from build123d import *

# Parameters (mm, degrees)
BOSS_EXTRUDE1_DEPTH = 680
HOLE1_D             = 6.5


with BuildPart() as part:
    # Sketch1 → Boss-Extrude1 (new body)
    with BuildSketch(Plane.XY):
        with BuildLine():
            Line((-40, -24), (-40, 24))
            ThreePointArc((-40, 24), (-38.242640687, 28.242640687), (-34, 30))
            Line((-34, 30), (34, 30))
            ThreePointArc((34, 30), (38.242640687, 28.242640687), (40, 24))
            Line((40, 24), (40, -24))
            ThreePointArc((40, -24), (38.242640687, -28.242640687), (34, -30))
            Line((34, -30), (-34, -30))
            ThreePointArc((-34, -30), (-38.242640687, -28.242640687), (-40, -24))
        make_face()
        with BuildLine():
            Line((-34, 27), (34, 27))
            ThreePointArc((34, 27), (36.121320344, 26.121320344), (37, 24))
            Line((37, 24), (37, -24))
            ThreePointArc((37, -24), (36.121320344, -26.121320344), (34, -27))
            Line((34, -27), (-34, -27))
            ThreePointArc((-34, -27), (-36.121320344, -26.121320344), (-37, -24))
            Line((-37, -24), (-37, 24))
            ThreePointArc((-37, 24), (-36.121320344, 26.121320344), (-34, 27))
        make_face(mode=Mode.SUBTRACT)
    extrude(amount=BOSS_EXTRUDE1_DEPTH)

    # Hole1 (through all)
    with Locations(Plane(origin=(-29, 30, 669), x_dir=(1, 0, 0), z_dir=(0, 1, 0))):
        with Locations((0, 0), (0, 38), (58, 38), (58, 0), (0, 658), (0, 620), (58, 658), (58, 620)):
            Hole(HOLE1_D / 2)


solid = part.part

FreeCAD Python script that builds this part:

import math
import FreeCAD as App
import Part
import Sketcher
Q = App.Units.Quantity

doc = App.newDocument("Part")
params = doc.addObject("Spreadsheet::Sheet", "Params")
for row, (alias, value) in enumerate([
    ("sketch1_radius", "6 mm"),
    ("sketch1_radius2", "3 mm"),
    ("sketch1_width", "68 mm"),
    ("sketch1_height", "48 mm"),
    ("pad1_length", "680 mm"),
    ("sketch2_diameter", "6.5 mm"),
    ("hole_diameter", "6.5 mm"),
], start=1):
    params.set(f"A{row}", alias)
    params.set(f"B{row}", "=" + value)
    params.setAlias(f"B{row}", alias)

body = doc.addObject("PartDesign::Body", "Body")

# Sketch on XY plane
sketch1 = doc.addObject("Sketcher::SketchObject", "Sketch")
body.addObject(sketch1)
sketch1.AttachmentSupport = (doc.XY_Plane, [""])
sketch1.MapMode = "FlatFace"
sketch1.addGeometry(Part.LineSegment(App.Vector(-40, 24, 0), App.Vector(-40, -24, 0)), False)
sketch1.addGeometry(Part.ArcOfCircle(Part.Circle(App.Vector(-34, -24, 0), App.Vector(0, 0, 1), 6), math.radians(180), math.radians(270)), False)
sketch1.addGeometry(Part.LineSegment(App.Vector(-34, -30, 0), App.Vector(34, -30, 0)), False)
sketch1.addGeometry(Part.ArcOfCircle(Part.Circle(App.Vector(34, -24, 0), App.Vector(0, 0, 1), 6), math.radians(-90), math.radians(0)), False)
sketch1.addGeometry(Part.LineSegment(App.Vector(40, -24, 0), App.Vector(40, 24, 0)), False)
sketch1.addGeometry(Part.ArcOfCircle(Part.Circle(App.Vector(34, 24, 0), App.Vector(0, 0, 1), 6), math.radians(0), math.radians(90)), False)
sketch1.addGeometry(Part.LineSegment(App.Vector(34, 30, 0), App.Vector(-34, 30, 0)), False)
sketch1.addGeometry(Part.ArcOfCircle(Part.Circle(App.Vector(-34, 24, 0), App.Vector(0, 0, 1), 6), math.radians(90), math.radians(180)), False)
sketch1.addGeometry(Part.LineSegment(App.Vector(-34, 27, 0), App.Vector(34, 27, 0)), False)
sketch1.addGeometry(Part.ArcOfCircle(Part.Circle(App.Vector(34, 24, 0), App.Vector(0, 0, 1), 3), math.radians(0), math.radians(90)), False)
sketch1.addGeometry(Part.LineSegment(App.Vector(37, 24, 0), App.Vector(37, -24, 0)), False)
sketch1.addGeometry(Part.ArcOfCircle(Part.Circle(App.Vector(34, -24, 0), App.Vector(0, 0, 1), 3), math.radians(-90), math.radians(0)), False)
sketch1.addGeometry(Part.LineSegment(App.Vector(34, -27, 0), App.Vector(-34, -27, 0)), False)
sketch1.addGeometry(Part.ArcOfCircle(Part.Circle(App.Vector(-34, -24, 0), App.Vector(0, 0, 1), 3), math.radians(180), math.radians(270)), False)
sketch1.addGeometry(Part.LineSegment(App.Vector(-37, -24, 0), App.Vector(-37, 24, 0)), False)
sketch1.addGeometry(Part.ArcOfCircle(Part.Circle(App.Vector(-34, 24, 0), App.Vector(0, 0, 1), 3), math.radians(90), math.radians(180)), False)
sketch1.addConstraint(Sketcher.Constraint("Tangent", 0, 2, 1, 1))
sketch1.addConstraint(Sketcher.Constraint("Tangent", 1, 2, 2, 1))
sketch1.addConstraint(Sketcher.Constraint("Tangent", 2, 2, 3, 1))
sketch1.addConstraint(Sketcher.Constraint("Tangent", 3, 2, 4, 1))
sketch1.addConstraint(Sketcher.Constraint("Tangent", 4, 2, 5, 1))
sketch1.addConstraint(Sketcher.Constraint("Tangent", 5, 2, 6, 1))
sketch1.addConstraint(Sketcher.Constraint("Tangent", 6, 2, 7, 1))
sketch1.addConstraint(Sketcher.Constraint("Tangent", 7, 2, 0, 1))
sketch1.addConstraint(Sketcher.Constraint("Tangent", 8, 2, 9, 2))
sketch1.addConstraint(Sketcher.Constraint("Tangent", 9, 1, 10, 1))
sketch1.addConstraint(Sketcher.Constraint("Tangent", 10, 2, 11, 2))
sketch1.addConstraint(Sketcher.Constraint("Tangent", 11, 1, 12, 1))
sketch1.addConstraint(Sketcher.Constraint("Tangent", 12, 2, 13, 2))
sketch1.addConstraint(Sketcher.Constraint("Tangent", 13, 1, 14, 1))
sketch1.addConstraint(Sketcher.Constraint("Tangent", 14, 2, 15, 2))
sketch1.addConstraint(Sketcher.Constraint("Tangent", 15, 1, 8, 1))
sketch1.addConstraint(Sketcher.Constraint("Vertical", 0))
sketch1.addConstraint(Sketcher.Constraint("Horizontal", 2))
sketch1.addConstraint(Sketcher.Constraint("Vertical", 4))
sketch1.addConstraint(Sketcher.Constraint("Horizontal", 6))
sketch1.addConstraint(Sketcher.Constraint("Horizontal", 8))
sketch1.addConstraint(Sketcher.Constraint("Vertical", 10))
sketch1.addConstraint(Sketcher.Constraint("Horizontal", 12))
sketch1.addConstraint(Sketcher.Constraint("Vertical", 14))
sketch1.addConstraint(Sketcher.Constraint("Coincident", 9, 3, 5, 3))
sketch1.addConstraint(Sketcher.Constraint("Coincident", 11, 3, 3, 3))
sketch1.addConstraint(Sketcher.Constraint("Coincident", 13, 3, 1, 3))
sketch1.addConstraint(Sketcher.Constraint("Equal", 1, 3))
sketch1.addConstraint(Sketcher.Constraint("Equal", 3, 5))
sketch1.addConstraint(Sketcher.Constraint("Equal", 5, 7))
sketch1.addConstraint(Sketcher.Constraint("Equal", 13, 15))
sketch1.addConstraint(Sketcher.Constraint("Symmetric", 1, 3, 5, 3, -1, 1))
sketch1.addConstraint(Sketcher.Constraint("Radius", 1, Q("6 mm")))
sketch1.addConstraint(Sketcher.Constraint("Radius", 9, Q("3 mm")))
sketch1.addConstraint(Sketcher.Constraint("DistanceX", 2, 1, 2, 2, Q("68 mm")))
sketch1.addConstraint(Sketcher.Constraint("DistanceY", 0, 2, 0, 1, Q("48 mm")))
sketch1.setExpression("Constraints[32]", "Params.sketch1_radius")
sketch1.setExpression("Constraints[33]", "Params.sketch1_radius2")
sketch1.setExpression("Constraints[34]", "Params.sketch1_width")
sketch1.setExpression("Constraints[35]", "Params.sketch1_height")
pad1 = doc.addObject("PartDesign::Pad", "Pad")
body.addObject(pad1)
pad1.Profile = sketch1
pad1.setExpression("Length", "Params.pad1_length")

# Sketch on XZ plane
sketch2 = doc.addObject("Sketcher::SketchObject", "Sketch001")
body.addObject(sketch2)
sketch2.AttachmentSupport = (doc.XZ_Plane, [""])
sketch2.MapMode = "FlatFace"
sketch2.AttachmentOffset = App.Placement(App.Vector(0, 0, -30), App.Rotation())
sketch2.addGeometry(Part.Circle(App.Vector(-29, 669, 0), App.Vector(0, 0, 1), 3.2), False)
sketch2.addGeometry(Part.Circle(App.Vector(-29, 631, 0), App.Vector(0, 0, 1), 3.2), False)
sketch2.addGeometry(Part.Circle(App.Vector(29, 631, 0), App.Vector(0, 0, 1), 3.2), False)
sketch2.addGeometry(Part.Circle(App.Vector(29, 669, 0), App.Vector(0, 0, 1), 3.2), False)
sketch2.addGeometry(Part.Circle(App.Vector(-29, 11, 0), App.Vector(0, 0, 1), 3.2), False)
sketch2.addGeometry(Part.Circle(App.Vector(-29, 49, 0), App.Vector(0, 0, 1), 3.2), False)
sketch2.addGeometry(Part.Circle(App.Vector(29, 11, 0), App.Vector(0, 0, 1), 3.2), False)
sketch2.addGeometry(Part.Circle(App.Vector(29, 49, 0), App.Vector(0, 0, 1), 3.2), False)
sketch2.addConstraint(Sketcher.Constraint("Equal", 0, 1))
sketch2.addConstraint(Sketcher.Constraint("Equal", 1, 2))
sketch2.addConstraint(Sketcher.Constraint("Equal", 2, 3))
sketch2.addConstraint(Sketcher.Constraint("Equal", 3, 4))
sketch2.addConstraint(Sketcher.Constraint("Equal", 4, 5))
sketch2.addConstraint(Sketcher.Constraint("Equal", 5, 6))
sketch2.addConstraint(Sketcher.Constraint("Equal", 6, 7))
sketch2.addConstraint(Sketcher.Constraint("Symmetric", 1, 3, 2, 3, -2))
sketch2.addConstraint(Sketcher.Constraint("Symmetric", 0, 3, 3, 3, -2))
sketch2.addConstraint(Sketcher.Constraint("Symmetric", 4, 3, 6, 3, -2))
sketch2.addConstraint(Sketcher.Constraint("Symmetric", 5, 3, 7, 3, -2))
sketch2.addConstraint(Sketcher.Constraint("Vertical", 0, 3, 1, 3))
sketch2.addConstraint(Sketcher.Constraint("Vertical", 1, 3, 4, 3))
sketch2.addConstraint(Sketcher.Constraint("Vertical", 4, 3, 5, 3))
sketch2.addConstraint(Sketcher.Constraint("Diameter", 0, Q("6.5 mm")))
sketch2.addConstraint(Sketcher.Constraint("DistanceX", 0, 3, -1, 1, Q("29 mm")))
sketch2.addConstraint(Sketcher.Constraint("DistanceY", -1, 1, 0, 3, Q("669 mm")))
sketch2.addConstraint(Sketcher.Constraint("DistanceY", -1, 1, 1, 3, Q("631 mm")))
sketch2.addConstraint(Sketcher.Constraint("DistanceY", -1, 1, 4, 3, Q("11 mm")))
sketch2.addConstraint(Sketcher.Constraint("DistanceY", -1, 1, 5, 3, Q("49 mm")))
sketch2.setExpression("Constraints[14]", "Params.sketch2_diameter")
doc.recompute()
hole = doc.addObject("PartDesign::Hole", "Hole")
body.addObject(hole)
hole.Profile = sketch2
hole.ThreadType = "None"
hole.setExpression("Diameter", "Params.hole_diameter")
hole.DepthType = "ThroughAll"
hole.Reversed = True

doc.recompute()
